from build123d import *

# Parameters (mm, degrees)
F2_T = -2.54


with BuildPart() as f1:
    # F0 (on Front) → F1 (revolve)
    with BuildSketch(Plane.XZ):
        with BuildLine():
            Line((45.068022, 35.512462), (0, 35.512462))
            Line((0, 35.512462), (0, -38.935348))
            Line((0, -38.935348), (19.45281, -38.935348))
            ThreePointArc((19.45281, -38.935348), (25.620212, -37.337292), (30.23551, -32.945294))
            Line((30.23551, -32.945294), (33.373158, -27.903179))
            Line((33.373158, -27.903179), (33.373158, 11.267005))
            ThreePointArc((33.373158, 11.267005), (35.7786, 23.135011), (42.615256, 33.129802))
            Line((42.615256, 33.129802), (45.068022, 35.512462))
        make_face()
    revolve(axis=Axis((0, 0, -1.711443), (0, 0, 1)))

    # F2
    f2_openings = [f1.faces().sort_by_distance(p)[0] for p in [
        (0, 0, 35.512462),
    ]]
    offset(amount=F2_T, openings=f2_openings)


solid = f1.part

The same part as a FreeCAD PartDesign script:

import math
import FreeCAD as App
import Part
import Sketcher
from FreeCAD import Vector
Q = App.Units.Quantity


def faces_at(feature, points):
    """Names of the faces that lie closest to the given points."""
    faces = feature.Shape.Faces
    near = lambda p: min(range(len(faces)), key=lambda i: faces[i].distToShape(Part.Vertex(*p))[0])
    return sorted({f"Face{near(p) + 1}" for p in points})

doc = App.newDocument("Part")
params = doc.addObject("Spreadsheet::Sheet", "Params")
for row, (alias, value) in enumerate([
    ("sketch1_radius", "0.4999999 in"),
    ("sketch1_radius2", "1.2000001 in"),
    ("revolution_angle", "360 deg"),
    ("thickness_wall", "0.1 in"),
], start=1):
    params.set(f"A{row}", alias)
    params.set(f"B{row}", "=" + value)
    params.setAlias(f"B{row}", alias)

body = doc.addObject("PartDesign::Body", "Body")

# Sketch on XZ plane
sketch1 = doc.addObject("Sketcher::SketchObject", "Sketch")
body.addObject(sketch1)
sketch1.AttachmentSupport = (doc.XZ_Plane, [""])
sketch1.MapMode = "FlatFace"
sketch1.addGeometry(Part.LineSegment(Vector(45.068022, 35.512462, 0), Vector(0, 35.512462, 0)), False)
sketch1.addGeometry(Part.LineSegment(Vector(0, 35.512462, 0), Vector(0, -38.935348, 0)), False)
sketch1.addGeometry(Part.LineSegment(Vector(0, -38.935348, 0), Vector(19.45281, -38.935348, 0)), False)
sketch1.addGeometry(Part.ArcOfCircle(Part.Circle(Vector(19.452811, -26.235351, 0), Vector(0, 0, 1), 12.699997), math.radians(-90.000006), math.radians(-31.893505)), False)
sketch1.addGeometry(Part.LineSegment(Vector(30.23551, -32.945294, 0), Vector(33.373158, -27.903179, 0)), False)
sketch1.addGeometry(Part.LineSegment(Vector(33.373158, -27.903179, 0), Vector(33.373158, 11.267005, 0)), False)
sketch1.addGeometry(Part.ArcOfCircle(Part.Circle(Vector(63.85316, 11.267003, 0), Vector(0, 0, 1), 30.480002), math.radians(134.169357), math.radians(179.999997)), False)
sketch1.addGeometry(Part.LineSegment(Vector(42.615256, 33.129802, 0), Vector(45.068022, 35.512462, 0)), False)
sketch1.addConstraint(Sketcher.Constraint("Coincident", 0, 2, 1, 1))
sketch1.addConstraint(Sketcher.Constraint("Coincident", 1, 2, 2, 1))
sketch1.addConstraint(Sketcher.Constraint("Tangent", 2, 2, 3, 1))
sketch1.addConstraint(Sketcher.Constraint("Tangent", 3, 2, 4, 1))
sketch1.addConstraint(Sketcher.Constraint("Coincident", 4, 2, 5, 1))
sketch1.addConstraint(Sketcher.Constraint("Tangent", 5, 2, 6, 2))
sketch1.addConstraint(Sketcher.Constraint("Tangent", 6, 1, 7, 1))
sketch1.addConstraint(Sketcher.Constraint("Coincident", 7, 2, 0, 1))
sketch1.addConstraint(Sketcher.Constraint("Horizontal", 0))
sketch1.addConstraint(Sketcher.Constraint("Vertical", 1))
sketch1.addConstraint(Sketcher.Constraint("Horizontal", 2))
sketch1.addConstraint(Sketcher.Constraint("Vertical", 5))
sketch1.addConstraint(Sketcher.Constraint("PointOnObject", 0, 2, -2))
sketch1.addConstraint(Sketcher.Constraint("Radius", 3, Q("0.4999999 in")))
sketch1.addConstraint(Sketcher.Constraint("Radius", 6, Q("1.2000001 in")))
sketch1.addConstraint(Sketcher.Constraint("DistanceX", 2, 1, 2, 2, Q("19.45281 mm")))
sketch1.addConstraint(Sketcher.Constraint("DistanceY", 1, 2, 1, 1, Q("74.44781 mm")))
sketch1.addConstraint(Sketcher.Constraint("DistanceY", -1, 1, 6, 1, Q("33.129802 mm")))
sketch1.addConstraint(Sketcher.Constraint("DistanceX", 2, 2, 3, 2, Q("10.7827 mm")))
sketch1.addConstraint(Sketcher.Constraint("DistanceY", 3, 2, 5, 2, Q("44.212299 mm")))
sketch1.addConstraint(Sketcher.Constraint("DistanceX", 5, 2, 6, 1, Q("9.242098 mm")))
sketch1.addConstraint(Sketcher.Constraint("DistanceX", 0, 2, 0, 1, Q("45.068022 mm")))
sketch1.setExpression("Constraints[13]", "Params.sketch1_radius")
sketch1.setExpression("Constraints[14]", "Params.sketch1_radius2")
revolution = doc.addObject("PartDesign::Revolution", "Revolution")
body.addObject(revolution)
revolution.Profile = sketch1
revolution.ReferenceAxis = (sketch1, ["V_Axis"])
revolution.setExpression("Angle", "Params.revolution_angle")
doc.recompute()

thickness = doc.addObject("PartDesign::Thickness", "Thickness")
body.addObject(thickness)
thickness.Base = (revolution, faces_at(revolution, [(0, 0, 35.512)]))
thickness.setExpression("Value", "Params.thickness_wall")
thickness.Reversed = True
thickness.Join = "Arc"

doc.recompute()
